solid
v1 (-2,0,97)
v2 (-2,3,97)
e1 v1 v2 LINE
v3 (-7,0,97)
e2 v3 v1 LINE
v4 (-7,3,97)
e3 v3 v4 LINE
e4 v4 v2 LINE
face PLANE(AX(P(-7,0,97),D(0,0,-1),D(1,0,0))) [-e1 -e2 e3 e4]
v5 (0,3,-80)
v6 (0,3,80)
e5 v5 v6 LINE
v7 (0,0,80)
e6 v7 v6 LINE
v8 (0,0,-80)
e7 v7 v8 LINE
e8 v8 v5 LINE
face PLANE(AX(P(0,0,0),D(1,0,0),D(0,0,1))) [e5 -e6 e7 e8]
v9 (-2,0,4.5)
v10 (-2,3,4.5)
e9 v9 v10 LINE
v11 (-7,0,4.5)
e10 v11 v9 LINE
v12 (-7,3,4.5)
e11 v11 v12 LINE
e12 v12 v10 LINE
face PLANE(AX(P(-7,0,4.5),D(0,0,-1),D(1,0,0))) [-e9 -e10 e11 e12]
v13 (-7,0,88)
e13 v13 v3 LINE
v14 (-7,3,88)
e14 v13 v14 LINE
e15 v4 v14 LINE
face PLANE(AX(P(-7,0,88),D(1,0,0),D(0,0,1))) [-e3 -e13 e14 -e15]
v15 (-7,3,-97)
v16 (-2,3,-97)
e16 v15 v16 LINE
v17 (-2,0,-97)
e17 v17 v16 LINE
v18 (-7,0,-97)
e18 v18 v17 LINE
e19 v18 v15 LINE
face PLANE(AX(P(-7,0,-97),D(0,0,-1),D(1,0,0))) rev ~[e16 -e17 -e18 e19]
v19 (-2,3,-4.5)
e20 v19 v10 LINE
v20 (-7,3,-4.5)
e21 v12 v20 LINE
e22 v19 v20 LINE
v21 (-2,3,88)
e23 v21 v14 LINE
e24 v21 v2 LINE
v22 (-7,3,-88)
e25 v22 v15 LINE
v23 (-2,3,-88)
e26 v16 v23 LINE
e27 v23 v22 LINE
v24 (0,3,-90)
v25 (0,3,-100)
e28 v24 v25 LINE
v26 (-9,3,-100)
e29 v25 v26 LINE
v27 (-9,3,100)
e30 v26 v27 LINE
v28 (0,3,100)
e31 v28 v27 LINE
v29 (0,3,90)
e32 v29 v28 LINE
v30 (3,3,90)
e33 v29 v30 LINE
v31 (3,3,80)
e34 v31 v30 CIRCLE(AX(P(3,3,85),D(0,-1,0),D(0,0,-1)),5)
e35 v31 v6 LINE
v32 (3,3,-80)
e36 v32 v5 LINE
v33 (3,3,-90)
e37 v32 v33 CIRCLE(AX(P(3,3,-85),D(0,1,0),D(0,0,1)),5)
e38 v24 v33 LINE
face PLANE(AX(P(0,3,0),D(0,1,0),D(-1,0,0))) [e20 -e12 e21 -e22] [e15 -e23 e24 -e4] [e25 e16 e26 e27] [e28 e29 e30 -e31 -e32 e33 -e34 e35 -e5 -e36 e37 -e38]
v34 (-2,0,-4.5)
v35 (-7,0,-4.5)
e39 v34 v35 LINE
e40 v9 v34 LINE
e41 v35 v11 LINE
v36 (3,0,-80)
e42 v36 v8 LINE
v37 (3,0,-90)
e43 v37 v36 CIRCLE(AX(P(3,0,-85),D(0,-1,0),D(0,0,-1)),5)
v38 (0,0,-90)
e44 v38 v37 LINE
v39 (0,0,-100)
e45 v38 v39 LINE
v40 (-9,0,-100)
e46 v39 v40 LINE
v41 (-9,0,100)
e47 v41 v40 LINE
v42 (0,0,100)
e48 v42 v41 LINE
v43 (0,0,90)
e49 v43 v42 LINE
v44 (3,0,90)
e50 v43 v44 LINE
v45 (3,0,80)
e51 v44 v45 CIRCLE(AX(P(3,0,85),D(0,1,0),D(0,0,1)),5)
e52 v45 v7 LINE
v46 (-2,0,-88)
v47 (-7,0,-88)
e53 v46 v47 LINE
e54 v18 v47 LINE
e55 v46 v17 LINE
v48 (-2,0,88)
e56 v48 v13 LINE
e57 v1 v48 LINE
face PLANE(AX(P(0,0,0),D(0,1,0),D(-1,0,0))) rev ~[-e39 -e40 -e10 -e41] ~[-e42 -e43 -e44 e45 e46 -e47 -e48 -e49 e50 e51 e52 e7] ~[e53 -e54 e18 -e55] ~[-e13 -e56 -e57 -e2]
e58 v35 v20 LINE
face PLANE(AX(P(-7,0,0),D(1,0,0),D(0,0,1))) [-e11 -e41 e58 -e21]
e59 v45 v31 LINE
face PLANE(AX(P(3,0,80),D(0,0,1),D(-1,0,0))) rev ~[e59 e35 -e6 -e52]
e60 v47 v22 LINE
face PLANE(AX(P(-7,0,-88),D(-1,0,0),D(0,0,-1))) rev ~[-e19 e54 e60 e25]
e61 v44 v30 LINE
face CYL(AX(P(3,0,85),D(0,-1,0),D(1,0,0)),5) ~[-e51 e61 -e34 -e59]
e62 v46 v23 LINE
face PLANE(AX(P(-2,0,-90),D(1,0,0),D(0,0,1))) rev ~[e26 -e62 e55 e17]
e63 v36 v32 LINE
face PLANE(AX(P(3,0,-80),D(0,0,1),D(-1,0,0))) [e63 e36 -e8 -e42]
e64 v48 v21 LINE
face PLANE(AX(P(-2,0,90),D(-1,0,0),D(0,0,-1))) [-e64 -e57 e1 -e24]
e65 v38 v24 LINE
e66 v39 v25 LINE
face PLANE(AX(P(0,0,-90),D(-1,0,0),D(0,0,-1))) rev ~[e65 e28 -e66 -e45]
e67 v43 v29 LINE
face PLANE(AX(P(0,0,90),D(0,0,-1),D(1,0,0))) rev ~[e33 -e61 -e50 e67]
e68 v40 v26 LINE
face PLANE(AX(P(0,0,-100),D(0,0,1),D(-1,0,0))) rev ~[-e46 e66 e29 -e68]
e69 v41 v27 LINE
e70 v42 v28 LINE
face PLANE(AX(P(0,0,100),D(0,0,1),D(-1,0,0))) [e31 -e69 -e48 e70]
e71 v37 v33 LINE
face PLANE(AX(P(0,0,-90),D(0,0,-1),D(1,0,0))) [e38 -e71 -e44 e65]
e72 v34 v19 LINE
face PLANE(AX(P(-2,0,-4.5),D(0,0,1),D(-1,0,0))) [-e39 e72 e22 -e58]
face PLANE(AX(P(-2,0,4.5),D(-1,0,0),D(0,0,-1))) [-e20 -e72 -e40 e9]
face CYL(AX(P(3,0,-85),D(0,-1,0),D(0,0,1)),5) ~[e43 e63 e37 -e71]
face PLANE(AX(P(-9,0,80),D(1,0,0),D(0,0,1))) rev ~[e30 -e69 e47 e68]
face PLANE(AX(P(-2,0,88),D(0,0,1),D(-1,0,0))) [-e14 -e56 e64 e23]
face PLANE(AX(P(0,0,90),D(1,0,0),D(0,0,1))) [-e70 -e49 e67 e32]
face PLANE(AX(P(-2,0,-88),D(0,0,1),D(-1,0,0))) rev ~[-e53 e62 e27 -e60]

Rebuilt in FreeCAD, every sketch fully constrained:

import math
import FreeCAD as App
import Part
import Sketcher

V = App.Vector


def add_polygon(sketch, points):
    """Adds a closed chain of lines whose ends are joined by coincident constraints."""
    first, n = sketch.GeometryCount, len(points)
    for a, b in zip(points, points[1:] + points[:1]):
        sketch.addGeometry(Part.LineSegment(App.Vector(*a, 0), App.Vector(*b, 0)), False)
    for i in range(n):
        sketch.addConstraint(Sketcher.Constraint("Coincident", first + i, 2, first + (i + 1) % n, 1))

doc = App.newDocument("Part")
body = doc.addObject("PartDesign::Body", "Body")

sketch1 = body.newObject("Sketcher::SketchObject", "Sketch")
sketch1.AttachmentSupport = (doc.getObject("XZ_Plane"), [""])
sketch1.MapMode = "FlatFace"
sketch1.addGeometry(Part.LineSegment(V(3, 80, 0), V(0, 80, 0)), False)
sketch1.addGeometry(Part.LineSegment(V(0, 80, 0), V(0, -80, 0)), False)
sketch1.addGeometry(Part.LineSegment(V(0, -80, 0), V(3, -80, 0)), False)
sketch1.addGeometry(Part.ArcOfCircle(Part.Circle(V(3, -85, 0), V(0, 0, 1), 5), math.radians(-90), math.radians(90)), False)
sketch1.addGeometry(Part.LineSegment(V(3, -90, 0), V(0, -90, 0)), False)
sketch1.addGeometry(Part.LineSegment(V(0, -90, 0), V(0, -100, 0)), False)
sketch1.addGeometry(Part.LineSegment(V(0, -100, 0), V(-9, -100, 0)), False)
sketch1.addGeometry(Part.LineSegment(V(-9, -100, 0), V(-9, 100, 0)), False)
sketch1.addGeometry(Part.LineSegment(V(-9, 100, 0), V(0, 100, 0)), False)
sketch1.addGeometry(Part.LineSegment(V(0, 100, 0), V(0, 90, 0)), False)
sketch1.addGeometry(Part.LineSegment(V(0, 90, 0), V(3, 90, 0)), False)
sketch1.addGeometry(Part.ArcOfCircle(Part.Circle(V(3, 85, 0), V(0, 0, 1), 5), math.radians(-90), math.radians(90)), False)
add_polygon(sketch1, [(-2, 88), (-2, 97), (-7, 97), (-7, 88)])
add_polygon(sketch1, [(-7, 4.5), (-7, -4.5), (-2, -4.5), (-2, 4.5)])
add_polygon(sketch1, [(-7, -88), (-7, -97), (-2, -97), (-2, -88)])
sketch1.addConstraint(Sketcher.Constraint("Coincident", 0, 2, 1, 1))
sketch1.addConstraint(Sketcher.Constraint("Coincident", 1, 2, 2, 1))
sketch1.addConstraint(Sketcher.Constraint("Tangent", 2, 2, 3, 2))
sketch1.addConstraint(Sketcher.Constraint("Tangent", 3, 1, 4, 1))
sketch1.addConstraint(Sketcher.Constraint("Coincident", 4, 2, 5, 1))
sketch1.addConstraint(Sketcher.Constraint("Coincident", 5, 2, 6, 1))
sketch1.addConstraint(Sketcher.Constraint("Coincident", 6, 2, 7, 1))
sketch1.addConstraint(Sketcher.Constraint("Coincident", 7, 2, 8, 1))
sketch1.addConstraint(Sketcher.Constraint("Coincident", 8, 2, 9, 1))
sketch1.addConstraint(Sketcher.Constraint("Coincident", 9, 2, 10, 1))
sketch1.addConstraint(Sketcher.Constraint("Tangent", 10, 2, 11, 2))
sketch1.addConstraint(Sketcher.Constraint("Tangent", 11, 1, 0, 1))
sketch1.addConstraint(Sketcher.Constraint("Horizontal", 0))
sketch1.addConstraint(Sketcher.Constraint("Vertical", 1))
sketch1.addConstraint(Sketcher.Constraint("Horizontal", 2))
sketch1.addConstraint(Sketcher.Constraint("Horizontal", 4))
sketch1.addConstraint(Sketcher.Constraint("Vertical", 5))
sketch1.addConstraint(Sketcher.Constraint("Horizontal", 6))
sketch1.addConstraint(Sketcher.Constraint("Vertical", 7))
sketch1.addConstraint(Sketcher.Constraint("Horizontal", 8))
sketch1.addConstraint(Sketcher.Constraint("Vertical", 9))
sketch1.addConstraint(Sketcher.Constraint("Horizontal", 10))
sketch1.addConstraint(Sketcher.Constraint("Vertical", 12))
sketch1.addConstraint(Sketcher.Constraint("Horizontal", 13))
sketch1.addConstraint(Sketcher.Constraint("Vertical", 14))
sketch1.addConstraint(Sketcher.Constraint("Horizontal", 15))
sketch1.addConstraint(Sketcher.Constraint("Vertical", 16))
sketch1.addConstraint(Sketcher.Constraint("Horizontal", 17))
sketch1.addConstraint(Sketcher.Constraint("Vertical", 18))
sketch1.addConstraint(Sketcher.Constraint("Horizontal", 19))
sketch1.addConstraint(Sketcher.Constraint("Vertical", 20))
sketch1.addConstraint(Sketcher.Constraint("Horizontal", 21))
sketch1.addConstraint(Sketcher.Constraint("Vertical", 22))
sketch1.addConstraint(Sketcher.Constraint("Horizontal", 23))
sketch1.addConstraint(Sketcher.Constraint("Equal", 3, 11))
sketch1.addConstraint(Sketcher.Constraint("Symmetric", 0, 2, 1, 2, -1, 1))
sketch1.addConstraint(Sketcher.Constraint("Symmetric", 5, 2, 8, 2, -1, 1))
sketch1.addConstraint(Sketcher.Constraint("Symmetric", 13, 2, 20, 2, -1))
sketch1.addConstraint(Sketcher.Constraint("Symmetric", 15, 2, 22, 2, -1))
sketch1.addConstraint(Sketcher.Constraint("PointOnObject", 4, 2, -2))
sketch1.addConstraint(Sketcher.Constraint("Vertical", 3, 3, 11, 3))
sketch1.addConstraint(Sketcher.Constraint("Vertical", 14, 2, 16, 2))
sketch1.addConstraint(Sketcher.Constraint("Vertical", 15, 2, 17, 2))
sketch1.addConstraint(Sketcher.Constraint("Equal", 8, 12))
sketch1.addConstraint(Sketcher.Constraint("Equal", 14, 16))
sketch1.addConstraint(Sketcher.Constraint("Radius", 3, 5.0))
sketch1.addConstraint(Sketcher.Constraint("DistanceX", 0, 2, 0, 1, 3.0))
sketch1.addConstraint(Sketcher.Constraint("DistanceX", 6, 2, 6, 1, 9.0))
sketch1.addConstraint(Sketcher.Constraint("DistanceX", 13, 2, 13, 1, 5.0))
sketch1.addConstraint(Sketcher.Constraint("DistanceY", 1, 2, 1, 1, 160.0))
sketch1.addConstraint(Sketcher.Constraint("DistanceY", 5, 2, 5, 1, 10.0))
sketch1.addConstraint(Sketcher.Constraint("DistanceY", 12, 2, 8, 2, 3.0))
sketch1.addConstraint(Sketcher.Constraint("DistanceX", 12, 2, 10, 2, 5.0))
sketch1.addConstraint(Sketcher.Constraint("DistanceY", 16, 2, -1, 1, 4.5))
pad1 = body.newObject("PartDesign::Pad", "Pad")
pad1.Profile = sketch1
pad1.Length = 3
pad1.Reversed = True

doc.recompute()
